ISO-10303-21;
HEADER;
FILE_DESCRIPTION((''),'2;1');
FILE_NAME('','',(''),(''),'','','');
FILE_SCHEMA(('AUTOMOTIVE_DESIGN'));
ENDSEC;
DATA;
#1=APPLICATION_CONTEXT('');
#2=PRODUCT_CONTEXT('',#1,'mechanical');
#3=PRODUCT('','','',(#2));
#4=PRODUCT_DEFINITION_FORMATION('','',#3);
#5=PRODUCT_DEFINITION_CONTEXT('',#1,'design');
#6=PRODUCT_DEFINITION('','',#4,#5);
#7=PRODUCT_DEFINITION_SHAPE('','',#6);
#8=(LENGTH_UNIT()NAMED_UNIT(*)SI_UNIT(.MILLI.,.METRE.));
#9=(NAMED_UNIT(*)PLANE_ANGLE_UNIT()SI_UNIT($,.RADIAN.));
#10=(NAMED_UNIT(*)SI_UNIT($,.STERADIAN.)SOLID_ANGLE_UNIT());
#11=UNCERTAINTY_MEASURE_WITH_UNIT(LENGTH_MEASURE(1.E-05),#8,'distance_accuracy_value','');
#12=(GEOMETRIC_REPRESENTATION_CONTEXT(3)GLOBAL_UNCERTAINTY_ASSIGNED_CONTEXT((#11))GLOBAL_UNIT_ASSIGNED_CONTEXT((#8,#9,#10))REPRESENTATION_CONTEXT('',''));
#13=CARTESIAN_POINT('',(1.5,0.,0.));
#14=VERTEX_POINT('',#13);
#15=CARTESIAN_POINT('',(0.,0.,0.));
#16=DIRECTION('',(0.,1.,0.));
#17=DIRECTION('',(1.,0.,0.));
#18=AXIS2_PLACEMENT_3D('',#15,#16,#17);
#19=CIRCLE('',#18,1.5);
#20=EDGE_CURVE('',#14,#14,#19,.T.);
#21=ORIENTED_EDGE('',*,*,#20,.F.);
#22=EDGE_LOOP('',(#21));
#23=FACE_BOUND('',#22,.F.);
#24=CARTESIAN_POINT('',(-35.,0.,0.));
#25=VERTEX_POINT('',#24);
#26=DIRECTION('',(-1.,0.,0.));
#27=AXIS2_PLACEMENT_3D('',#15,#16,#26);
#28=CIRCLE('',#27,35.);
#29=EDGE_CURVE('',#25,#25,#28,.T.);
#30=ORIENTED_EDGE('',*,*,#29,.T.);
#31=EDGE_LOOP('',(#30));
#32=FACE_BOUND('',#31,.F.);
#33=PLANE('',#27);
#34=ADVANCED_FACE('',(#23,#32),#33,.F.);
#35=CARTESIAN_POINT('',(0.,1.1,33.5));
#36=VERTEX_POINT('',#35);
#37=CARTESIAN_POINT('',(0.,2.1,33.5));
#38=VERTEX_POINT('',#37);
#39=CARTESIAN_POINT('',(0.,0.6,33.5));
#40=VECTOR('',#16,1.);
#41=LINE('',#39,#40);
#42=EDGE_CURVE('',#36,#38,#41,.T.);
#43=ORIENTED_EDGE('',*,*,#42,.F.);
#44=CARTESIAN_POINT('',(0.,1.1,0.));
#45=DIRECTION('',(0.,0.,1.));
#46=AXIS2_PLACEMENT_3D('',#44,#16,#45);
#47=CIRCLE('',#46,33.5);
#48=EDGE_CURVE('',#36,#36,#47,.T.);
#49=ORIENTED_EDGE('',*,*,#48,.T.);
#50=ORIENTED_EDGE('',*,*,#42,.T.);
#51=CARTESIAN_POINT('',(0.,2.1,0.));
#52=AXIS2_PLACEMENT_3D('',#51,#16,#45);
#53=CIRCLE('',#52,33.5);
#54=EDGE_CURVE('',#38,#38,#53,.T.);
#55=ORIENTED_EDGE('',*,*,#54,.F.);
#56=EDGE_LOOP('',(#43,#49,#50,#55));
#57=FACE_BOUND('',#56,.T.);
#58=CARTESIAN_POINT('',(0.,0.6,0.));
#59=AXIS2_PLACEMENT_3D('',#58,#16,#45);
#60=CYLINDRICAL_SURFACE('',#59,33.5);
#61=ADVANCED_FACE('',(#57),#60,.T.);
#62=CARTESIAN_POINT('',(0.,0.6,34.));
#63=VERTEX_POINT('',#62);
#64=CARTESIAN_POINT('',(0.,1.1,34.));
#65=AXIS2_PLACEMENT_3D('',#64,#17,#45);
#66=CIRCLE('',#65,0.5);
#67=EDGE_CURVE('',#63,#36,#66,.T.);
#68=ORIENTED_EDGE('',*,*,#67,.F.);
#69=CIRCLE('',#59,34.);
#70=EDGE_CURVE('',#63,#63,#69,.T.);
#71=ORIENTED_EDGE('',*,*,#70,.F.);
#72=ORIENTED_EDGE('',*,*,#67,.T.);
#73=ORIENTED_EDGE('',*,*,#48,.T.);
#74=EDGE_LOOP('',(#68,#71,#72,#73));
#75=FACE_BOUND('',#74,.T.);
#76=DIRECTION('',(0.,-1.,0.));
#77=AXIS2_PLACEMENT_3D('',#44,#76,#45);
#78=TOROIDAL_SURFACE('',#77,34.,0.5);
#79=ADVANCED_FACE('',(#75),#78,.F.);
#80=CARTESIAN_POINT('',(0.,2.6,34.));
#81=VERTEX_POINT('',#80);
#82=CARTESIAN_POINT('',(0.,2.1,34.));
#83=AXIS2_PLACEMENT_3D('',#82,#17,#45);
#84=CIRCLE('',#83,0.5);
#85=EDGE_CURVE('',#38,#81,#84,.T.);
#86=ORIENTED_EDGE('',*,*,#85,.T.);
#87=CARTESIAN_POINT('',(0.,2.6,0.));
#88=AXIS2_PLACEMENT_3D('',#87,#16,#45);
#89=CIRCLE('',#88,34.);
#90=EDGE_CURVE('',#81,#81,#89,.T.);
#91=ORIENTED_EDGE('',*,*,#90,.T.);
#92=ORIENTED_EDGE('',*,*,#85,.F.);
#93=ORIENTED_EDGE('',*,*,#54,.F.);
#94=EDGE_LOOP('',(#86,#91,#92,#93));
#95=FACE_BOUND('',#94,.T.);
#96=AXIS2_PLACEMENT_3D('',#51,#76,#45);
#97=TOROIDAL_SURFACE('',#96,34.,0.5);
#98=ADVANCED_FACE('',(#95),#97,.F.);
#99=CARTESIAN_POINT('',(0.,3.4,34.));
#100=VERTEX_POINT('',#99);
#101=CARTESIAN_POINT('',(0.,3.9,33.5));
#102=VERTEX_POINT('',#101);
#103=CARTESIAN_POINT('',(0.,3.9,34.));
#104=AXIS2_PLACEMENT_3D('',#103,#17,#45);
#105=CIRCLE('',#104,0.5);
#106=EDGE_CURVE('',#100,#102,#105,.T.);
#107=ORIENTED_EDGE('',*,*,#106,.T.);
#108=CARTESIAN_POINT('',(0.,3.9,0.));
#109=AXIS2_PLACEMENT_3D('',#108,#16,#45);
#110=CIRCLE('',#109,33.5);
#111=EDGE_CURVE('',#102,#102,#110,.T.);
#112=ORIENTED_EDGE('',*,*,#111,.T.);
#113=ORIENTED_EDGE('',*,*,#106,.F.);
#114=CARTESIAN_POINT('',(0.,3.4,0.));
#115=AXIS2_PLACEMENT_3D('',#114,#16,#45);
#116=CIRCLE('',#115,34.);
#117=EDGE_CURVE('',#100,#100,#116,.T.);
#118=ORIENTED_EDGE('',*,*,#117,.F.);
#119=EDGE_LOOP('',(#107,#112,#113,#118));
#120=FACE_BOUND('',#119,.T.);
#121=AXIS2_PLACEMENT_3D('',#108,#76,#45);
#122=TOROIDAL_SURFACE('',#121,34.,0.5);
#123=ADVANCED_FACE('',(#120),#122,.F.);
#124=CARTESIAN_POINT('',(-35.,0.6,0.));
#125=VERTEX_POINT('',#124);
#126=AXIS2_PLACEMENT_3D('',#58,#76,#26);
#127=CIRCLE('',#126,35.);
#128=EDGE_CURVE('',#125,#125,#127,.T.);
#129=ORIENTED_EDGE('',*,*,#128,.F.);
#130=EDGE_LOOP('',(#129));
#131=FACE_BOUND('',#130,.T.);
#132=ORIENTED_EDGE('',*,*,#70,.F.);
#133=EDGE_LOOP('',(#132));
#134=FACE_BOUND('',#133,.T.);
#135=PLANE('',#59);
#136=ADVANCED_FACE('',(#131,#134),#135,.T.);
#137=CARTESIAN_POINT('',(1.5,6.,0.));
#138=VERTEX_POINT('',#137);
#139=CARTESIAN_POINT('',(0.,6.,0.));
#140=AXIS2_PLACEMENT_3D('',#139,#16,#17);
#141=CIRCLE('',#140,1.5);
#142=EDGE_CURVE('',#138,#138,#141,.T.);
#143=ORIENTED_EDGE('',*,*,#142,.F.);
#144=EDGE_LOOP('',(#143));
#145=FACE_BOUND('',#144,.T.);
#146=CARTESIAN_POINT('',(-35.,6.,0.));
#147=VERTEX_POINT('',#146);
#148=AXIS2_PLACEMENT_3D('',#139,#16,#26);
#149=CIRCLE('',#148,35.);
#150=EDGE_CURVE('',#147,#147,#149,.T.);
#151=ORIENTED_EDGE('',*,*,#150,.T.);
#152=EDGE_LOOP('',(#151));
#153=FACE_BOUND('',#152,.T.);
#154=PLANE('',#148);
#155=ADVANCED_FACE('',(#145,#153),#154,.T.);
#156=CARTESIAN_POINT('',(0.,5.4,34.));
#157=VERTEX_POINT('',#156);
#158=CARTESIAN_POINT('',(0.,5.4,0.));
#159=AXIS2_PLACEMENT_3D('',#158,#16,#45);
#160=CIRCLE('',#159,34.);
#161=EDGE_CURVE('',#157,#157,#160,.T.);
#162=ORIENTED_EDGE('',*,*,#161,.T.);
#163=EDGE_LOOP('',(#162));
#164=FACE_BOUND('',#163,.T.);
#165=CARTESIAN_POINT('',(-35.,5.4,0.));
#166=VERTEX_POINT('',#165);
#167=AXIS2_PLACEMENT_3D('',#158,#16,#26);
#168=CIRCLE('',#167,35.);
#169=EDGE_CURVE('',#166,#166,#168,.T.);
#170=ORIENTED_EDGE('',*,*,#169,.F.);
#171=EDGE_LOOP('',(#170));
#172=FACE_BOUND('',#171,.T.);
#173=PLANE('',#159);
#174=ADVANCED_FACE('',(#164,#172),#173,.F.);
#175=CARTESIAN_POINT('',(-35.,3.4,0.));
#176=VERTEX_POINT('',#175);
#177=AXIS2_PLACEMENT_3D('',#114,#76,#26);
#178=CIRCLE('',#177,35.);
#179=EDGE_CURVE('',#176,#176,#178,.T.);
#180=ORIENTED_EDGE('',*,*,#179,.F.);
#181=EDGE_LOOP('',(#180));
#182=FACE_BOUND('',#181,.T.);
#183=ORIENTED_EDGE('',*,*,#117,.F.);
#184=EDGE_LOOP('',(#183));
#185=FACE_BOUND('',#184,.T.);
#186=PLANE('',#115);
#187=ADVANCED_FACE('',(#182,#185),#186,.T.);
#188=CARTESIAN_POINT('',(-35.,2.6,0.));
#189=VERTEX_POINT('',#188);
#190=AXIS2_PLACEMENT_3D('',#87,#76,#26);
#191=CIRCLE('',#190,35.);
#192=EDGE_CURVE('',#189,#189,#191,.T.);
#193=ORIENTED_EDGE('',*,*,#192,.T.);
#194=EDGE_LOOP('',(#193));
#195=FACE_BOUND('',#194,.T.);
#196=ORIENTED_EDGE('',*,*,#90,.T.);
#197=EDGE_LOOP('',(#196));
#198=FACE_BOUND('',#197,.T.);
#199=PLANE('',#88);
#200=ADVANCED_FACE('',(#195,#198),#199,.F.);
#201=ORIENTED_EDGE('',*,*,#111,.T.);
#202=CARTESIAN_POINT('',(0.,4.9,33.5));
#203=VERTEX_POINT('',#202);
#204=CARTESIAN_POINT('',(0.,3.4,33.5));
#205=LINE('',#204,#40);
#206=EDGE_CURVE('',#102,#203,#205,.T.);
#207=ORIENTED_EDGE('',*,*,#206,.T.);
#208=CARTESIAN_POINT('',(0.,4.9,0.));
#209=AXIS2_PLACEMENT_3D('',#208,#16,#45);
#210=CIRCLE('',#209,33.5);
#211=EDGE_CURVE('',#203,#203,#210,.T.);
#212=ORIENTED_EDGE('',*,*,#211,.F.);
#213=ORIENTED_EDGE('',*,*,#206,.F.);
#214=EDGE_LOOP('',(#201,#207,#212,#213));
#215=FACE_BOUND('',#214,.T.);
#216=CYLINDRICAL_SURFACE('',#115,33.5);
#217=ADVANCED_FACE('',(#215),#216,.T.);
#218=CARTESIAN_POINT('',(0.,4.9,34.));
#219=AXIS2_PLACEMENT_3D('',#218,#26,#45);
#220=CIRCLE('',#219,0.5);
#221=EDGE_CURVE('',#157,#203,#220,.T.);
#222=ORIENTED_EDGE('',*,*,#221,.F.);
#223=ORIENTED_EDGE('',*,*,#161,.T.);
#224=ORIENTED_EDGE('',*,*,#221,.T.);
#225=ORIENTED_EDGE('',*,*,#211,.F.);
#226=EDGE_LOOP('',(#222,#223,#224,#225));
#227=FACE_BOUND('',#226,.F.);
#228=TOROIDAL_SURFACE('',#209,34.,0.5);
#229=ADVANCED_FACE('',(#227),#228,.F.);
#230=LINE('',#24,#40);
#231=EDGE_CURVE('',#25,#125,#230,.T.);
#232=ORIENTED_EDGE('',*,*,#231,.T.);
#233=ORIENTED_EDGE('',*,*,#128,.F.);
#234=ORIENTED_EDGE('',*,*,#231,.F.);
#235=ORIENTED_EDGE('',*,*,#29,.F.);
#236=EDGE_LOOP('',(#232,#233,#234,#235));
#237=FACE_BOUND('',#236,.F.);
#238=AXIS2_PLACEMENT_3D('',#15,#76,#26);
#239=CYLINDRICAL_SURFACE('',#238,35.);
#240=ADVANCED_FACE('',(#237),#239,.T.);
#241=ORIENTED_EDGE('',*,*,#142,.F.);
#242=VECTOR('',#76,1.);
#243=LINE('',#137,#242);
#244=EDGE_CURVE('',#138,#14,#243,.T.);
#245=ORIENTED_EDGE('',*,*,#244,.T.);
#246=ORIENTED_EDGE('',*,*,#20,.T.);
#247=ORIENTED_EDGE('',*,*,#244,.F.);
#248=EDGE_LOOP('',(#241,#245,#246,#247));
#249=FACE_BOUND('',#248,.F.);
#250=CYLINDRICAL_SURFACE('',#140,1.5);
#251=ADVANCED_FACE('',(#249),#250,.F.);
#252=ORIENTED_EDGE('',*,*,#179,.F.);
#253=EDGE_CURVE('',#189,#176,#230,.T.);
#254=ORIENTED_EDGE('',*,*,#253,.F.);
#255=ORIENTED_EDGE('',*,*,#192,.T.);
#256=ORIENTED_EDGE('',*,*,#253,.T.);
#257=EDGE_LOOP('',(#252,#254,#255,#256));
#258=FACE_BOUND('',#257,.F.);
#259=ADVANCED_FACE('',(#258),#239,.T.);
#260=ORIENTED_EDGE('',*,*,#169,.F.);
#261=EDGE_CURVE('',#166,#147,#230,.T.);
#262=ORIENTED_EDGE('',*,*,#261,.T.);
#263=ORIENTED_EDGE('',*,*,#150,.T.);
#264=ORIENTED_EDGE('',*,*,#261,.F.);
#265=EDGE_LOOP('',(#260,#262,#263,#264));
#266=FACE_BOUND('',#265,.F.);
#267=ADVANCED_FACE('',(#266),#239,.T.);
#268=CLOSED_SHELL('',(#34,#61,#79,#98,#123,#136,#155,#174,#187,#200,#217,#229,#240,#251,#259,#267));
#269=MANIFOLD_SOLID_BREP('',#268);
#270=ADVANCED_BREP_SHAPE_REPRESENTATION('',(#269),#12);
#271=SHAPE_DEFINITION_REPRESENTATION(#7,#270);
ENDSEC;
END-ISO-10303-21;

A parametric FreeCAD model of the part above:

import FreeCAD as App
import Part
import Sketcher


def edges_at(feature, points):
    """Names of the edges that pass closest to the given points."""
    edges = feature.Shape.Edges
    near = lambda p: min(range(len(edges)), key=lambda i: edges[i].distToShape(Part.Vertex(*p))[0])
    return sorted({f"Edge{near(p) + 1}" for p in points})

doc = App.newDocument("Part")
params = doc.addObject("Spreadsheet::Sheet", "Params")
for row, (alias, value) in enumerate([
    ("sketch1_diameter", "70 mm"),
    ("pad1_length", "6 mm"),
    ("sketch2_diameter", "3 mm"),
    ("pocket1_length", "6 mm"),
    ("sketch3_width", "2 mm"),
    ("sketch3_height", "1.5 mm"),
    ("groove_angle", "360 deg"),
    ("fillet_radius", "0.5 mm"),
], start=1):
    params.set(f"A{row}", alias)
    params.set(f"B{row}", "=" + value)
    params.setAlias(f"B{row}", alias)

body = doc.addObject("PartDesign::Body", "Body")

sketch1 = body.newObject("Sketcher::SketchObject", "Sketch")
sketch1.AttachmentSupport = (doc.getObject("XZ_Plane"), [""])
sketch1.MapMode = "FlatFace"
sketch1.addGeometry(Part.Circle(App.Vector(0, 0, 0), App.Vector(0, 0, 1), 35), False)
sketch1.addConstraint([
    Sketcher.Constraint("Coincident", 0, 3, -1, 1),
    Sketcher.Constraint("Diameter", 0, 70.0),
])
sketch1.setExpression("Constraints[1]", "Params.sketch1_diameter")
pad1 = body.newObject("PartDesign::Pad", "Pad")
pad1.Profile = sketch1
pad1.setExpression("Length", "Params.pad1_length")
pad1.Reversed = True

sketch2 = body.newObject("Sketcher::SketchObject", "Sketch001")
sketch2.AttachmentSupport = (doc.getObject("XZ_Plane"), [""])
sketch2.MapMode = "FlatFace"
sketch2.AttachmentOffset = App.Placement(App.Vector(0, 0, -6), App.Rotation())
sketch2.addGeometry(Part.Circle(App.Vector(0, 0, 0), App.Vector(0, 0, 1), 1.5), False)
sketch2.addConstraint([
    Sketcher.Constraint("Coincident", 0, 3, -1, 1),
    Sketcher.Constraint("Diameter", 0, 3.0),
])
sketch2.setExpression("Constraints[1]", "Params.sketch2_diameter")
pocket1 = body.newObject("PartDesign::Pocket", "Pocket")
pocket1.Profile = sketch2
pocket1.setExpression("Length", "Params.pocket1_length")
pocket1.Reversed = True

sketch3 = body.newObject("Sketcher::SketchObject", "Sketch002")
sketch3.AttachmentSupport = (doc.getObject("YZ_Plane"), [""])
sketch3.MapMode = "FlatFace"
sketch3.addGeometry([
    Part.LineSegment(App.Vector(5.4, 35, 0), App.Vector(3.4, 35, 0)),
    Part.LineSegment(App.Vector(3.4, 35, 0), App.Vector(3.4, 33.5, 0)),
    Part.LineSegment(App.Vector(3.4, 33.5, 0), App.Vector(5.4, 33.5, 0)),
    Part.LineSegment(App.Vector(5.4, 33.5, 0), App.Vector(5.4, 35, 0)),
    Part.LineSegment(App.Vector(2.6, 35, 0), App.Vector(0.6, 35, 0)),
    Part.LineSegment(App.Vector(0.6, 35, 0), App.Vector(0.6, 33.5, 0)),
    Part.LineSegment(App.Vector(0.6, 33.5, 0), App.Vector(2.6, 33.5, 0)),
    Part.LineSegment(App.Vector(2.6, 33.5, 0), App.Vector(2.6, 35, 0)),
], False)
sketch3.addConstraint([
    Sketcher.Constraint("Coincident", 0, 2, 1, 1),
    Sketcher.Constraint("Coincident", 1, 2, 2, 1),
    Sketcher.Constraint("Coincident", 2, 2, 3, 1),
    Sketcher.Constraint("Coincident", 3, 2, 0, 1),
    Sketcher.Constraint("Coincident", 4, 2, 5, 1),
    Sketcher.Constraint("Coincident", 5, 2, 6, 1),
    Sketcher.Constraint("Coincident", 6, 2, 7, 1),
    Sketcher.Constraint("Coincident", 7, 2, 4, 1),
    Sketcher.Constraint("Horizontal", 0),
    Sketcher.Constraint("Vertical", 1),
    Sketcher.Constraint("Horizontal", 2),
    Sketcher.Constraint("Vertical", 3),
    Sketcher.Constraint("Horizontal", 4),
    Sketcher.Constraint("Vertical", 5),
    Sketcher.Constraint("Horizontal", 6),
    Sketcher.Constraint("Vertical", 7),
    Sketcher.Constraint("Horizontal", 3, 2, 4, 2),
    Sketcher.Constraint("Horizontal", 2, 2, 5, 2),
    Sketcher.Constraint("Equal", 2, 4),
    Sketcher.Constraint("DistanceX", 0, 2, 0, 1, 2.0),
    Sketcher.Constraint("DistanceY", 1, 2, 1, 1, 1.5),
    Sketcher.Constraint("DistanceY", -1, 1, 0, 2, 35.0),
    Sketcher.Constraint("DistanceX", -1, 1, 0, 2, 3.4),
    Sketcher.Constraint("DistanceX", -1, 1, 4, 2, 0.6),
])
sketch3.setExpression("Constraints[19]", "Params.sketch3_width")
sketch3.setExpression("Constraints[20]", "Params.sketch3_height")
groove = body.newObject("PartDesign::Groove", "Groove")
groove.Profile = sketch3
groove.ReferenceAxis = (sketch3, ["H_Axis"])
groove.setExpression("Angle", "Params.groove_angle")
doc.recompute()

fillet = body.newObject("PartDesign::Fillet", "Fillet")
fillet.Base = (groove, edges_at(groove, [
    (0, 3.4, -33.5),
    (0, 5.4, -33.5),
    (0, 2.6, -33.5),
    (0, 0.6, -33.5),
]))
fillet.setExpression("Radius", "Params.fillet_radius")

doc.recompute()
